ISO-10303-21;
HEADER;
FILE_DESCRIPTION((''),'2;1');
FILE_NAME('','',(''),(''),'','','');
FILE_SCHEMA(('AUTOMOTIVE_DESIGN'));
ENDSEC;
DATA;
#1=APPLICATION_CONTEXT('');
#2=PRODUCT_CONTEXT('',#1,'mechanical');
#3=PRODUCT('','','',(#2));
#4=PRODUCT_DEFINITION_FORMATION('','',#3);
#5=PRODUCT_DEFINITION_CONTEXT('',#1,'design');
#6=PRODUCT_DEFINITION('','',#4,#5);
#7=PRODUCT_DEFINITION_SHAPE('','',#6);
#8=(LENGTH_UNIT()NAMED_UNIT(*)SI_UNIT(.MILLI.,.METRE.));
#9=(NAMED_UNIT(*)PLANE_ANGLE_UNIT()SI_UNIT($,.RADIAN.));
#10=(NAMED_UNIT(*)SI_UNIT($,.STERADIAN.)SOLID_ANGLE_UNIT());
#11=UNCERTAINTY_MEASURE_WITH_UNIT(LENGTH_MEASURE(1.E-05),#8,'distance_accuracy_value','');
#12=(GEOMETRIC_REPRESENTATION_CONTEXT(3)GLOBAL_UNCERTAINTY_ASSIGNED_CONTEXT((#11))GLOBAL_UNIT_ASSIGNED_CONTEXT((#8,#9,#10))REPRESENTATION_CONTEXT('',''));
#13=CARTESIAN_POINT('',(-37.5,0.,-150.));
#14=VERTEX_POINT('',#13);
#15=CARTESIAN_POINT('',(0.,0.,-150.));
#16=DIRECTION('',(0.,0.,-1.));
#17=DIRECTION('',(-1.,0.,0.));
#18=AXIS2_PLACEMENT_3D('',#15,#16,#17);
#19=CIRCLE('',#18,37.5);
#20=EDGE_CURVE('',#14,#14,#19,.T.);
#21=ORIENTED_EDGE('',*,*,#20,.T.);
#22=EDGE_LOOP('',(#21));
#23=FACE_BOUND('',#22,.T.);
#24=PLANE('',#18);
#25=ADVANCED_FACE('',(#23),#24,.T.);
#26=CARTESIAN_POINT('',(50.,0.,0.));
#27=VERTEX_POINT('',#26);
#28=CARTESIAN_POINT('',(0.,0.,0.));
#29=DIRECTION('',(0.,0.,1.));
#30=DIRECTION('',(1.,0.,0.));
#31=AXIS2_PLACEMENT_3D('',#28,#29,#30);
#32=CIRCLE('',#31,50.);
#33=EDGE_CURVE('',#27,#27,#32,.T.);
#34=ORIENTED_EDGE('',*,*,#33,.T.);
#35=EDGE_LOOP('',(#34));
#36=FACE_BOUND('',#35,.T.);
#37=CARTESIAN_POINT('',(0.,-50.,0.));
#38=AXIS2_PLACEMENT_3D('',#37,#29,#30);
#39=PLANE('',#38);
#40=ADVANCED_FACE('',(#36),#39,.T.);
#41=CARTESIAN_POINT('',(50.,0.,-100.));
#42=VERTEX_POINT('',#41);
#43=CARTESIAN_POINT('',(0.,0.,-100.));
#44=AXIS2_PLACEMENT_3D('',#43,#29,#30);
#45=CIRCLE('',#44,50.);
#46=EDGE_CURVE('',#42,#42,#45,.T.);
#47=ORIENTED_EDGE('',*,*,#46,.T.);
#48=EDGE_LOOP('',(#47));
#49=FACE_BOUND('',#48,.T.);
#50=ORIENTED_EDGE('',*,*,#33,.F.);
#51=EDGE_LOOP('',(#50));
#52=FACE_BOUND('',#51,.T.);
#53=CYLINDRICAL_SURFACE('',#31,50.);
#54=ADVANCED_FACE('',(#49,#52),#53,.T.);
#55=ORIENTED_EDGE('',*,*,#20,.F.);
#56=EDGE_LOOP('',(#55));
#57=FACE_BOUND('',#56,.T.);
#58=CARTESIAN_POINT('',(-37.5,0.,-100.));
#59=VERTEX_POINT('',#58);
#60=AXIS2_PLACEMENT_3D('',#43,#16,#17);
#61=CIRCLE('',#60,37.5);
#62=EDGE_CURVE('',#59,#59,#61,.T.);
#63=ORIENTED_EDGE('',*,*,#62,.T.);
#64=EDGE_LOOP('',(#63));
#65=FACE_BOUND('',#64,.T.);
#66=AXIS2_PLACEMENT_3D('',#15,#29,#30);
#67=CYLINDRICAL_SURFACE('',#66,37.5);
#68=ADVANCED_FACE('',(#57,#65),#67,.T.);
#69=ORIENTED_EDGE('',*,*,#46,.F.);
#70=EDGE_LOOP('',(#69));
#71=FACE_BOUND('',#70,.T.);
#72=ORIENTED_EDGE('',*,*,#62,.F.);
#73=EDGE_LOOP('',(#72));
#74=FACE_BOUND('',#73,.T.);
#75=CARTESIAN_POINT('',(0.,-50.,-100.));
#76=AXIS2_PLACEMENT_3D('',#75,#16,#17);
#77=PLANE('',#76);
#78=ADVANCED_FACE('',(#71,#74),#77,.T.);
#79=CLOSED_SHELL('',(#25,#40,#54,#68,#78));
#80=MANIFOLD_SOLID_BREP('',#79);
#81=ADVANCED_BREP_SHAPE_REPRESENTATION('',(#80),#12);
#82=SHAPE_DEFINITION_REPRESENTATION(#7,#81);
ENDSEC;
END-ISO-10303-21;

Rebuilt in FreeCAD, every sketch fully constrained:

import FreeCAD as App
import Part
import Sketcher
from FreeCAD import Vector
Q = App.Units.Quantity

doc = App.newDocument("Part")
body = doc.addObject("PartDesign::Body", "Body")

# Sketch on YZ plane
sketch1 = body.newObject("Sketcher::SketchObject", "Sketch")
sketch1.AttachmentSupport = (doc.getObject("YZ_Plane"), [""])
sketch1.MapMode = "FlatFace"
sketch1.addGeometry([
    Part.LineSegment(Vector(0, 0, 0), Vector(-50, 0, 0)),
    Part.LineSegment(Vector(-50, 0, 0), Vector(-50, -100, 0)),
    Part.LineSegment(Vector(-50, -100, 0), Vector(0, -100, 0)),
    Part.LineSegment(Vector(0, -100, 0), Vector(0, 0, 0)),
], False)
sketch1.addConstraint([
    Sketcher.Constraint("Coincident", 0, 2, 1, 1),
    Sketcher.Constraint("Coincident", 1, 2, 2, 1),
    Sketcher.Constraint("Coincident", 2, 2, 3, 1),
    Sketcher.Constraint("Coincident", 3, 2, 0, 1),
    Sketcher.Constraint("Horizontal", 0),
    Sketcher.Constraint("Vertical", 1),
    Sketcher.Constraint("Horizontal", 2),
    Sketcher.Constraint("Vertical", 3),
    Sketcher.Constraint("Coincident", 3, 2, -1, 1),
    Sketcher.Constraint("DistanceX", 0, 2, 0, 1, Q("50 mm")),
    Sketcher.Constraint("DistanceY", 1, 2, 1, 1, Q("100 mm")),
])
revolution = body.newObject("PartDesign::Revolution", "Revolution")
revolution.Profile = sketch1
revolution.ReferenceAxis = (sketch1, ["V_Axis"])
revolution.Angle = 360

# Sketch on XY plane
sketch2 = body.newObject("Sketcher::SketchObject", "Sketch001")
sketch2.AttachmentSupport = (doc.getObject("XY_Plane"), [""])
sketch2.MapMode = "FlatFace"
sketch2.AttachmentOffset = App.Placement(Vector(0, 0, -100), App.Rotation())
sketch2.addGeometry(Part.Circle(Vector(0, 0, 0), Vector(0, 0, 1), 38), False)
sketch2.addConstraint([
    Sketcher.Constraint("Coincident", 0, 3, -1, 1),
    Sketcher.Constraint("Diameter", 0, Q("75 mm")),
])
pad1 = body.newObject("PartDesign::Pad", "Pad")
pad1.Profile = sketch2
pad1.Length = 50
pad1.Reversed = True

doc.recompute()
